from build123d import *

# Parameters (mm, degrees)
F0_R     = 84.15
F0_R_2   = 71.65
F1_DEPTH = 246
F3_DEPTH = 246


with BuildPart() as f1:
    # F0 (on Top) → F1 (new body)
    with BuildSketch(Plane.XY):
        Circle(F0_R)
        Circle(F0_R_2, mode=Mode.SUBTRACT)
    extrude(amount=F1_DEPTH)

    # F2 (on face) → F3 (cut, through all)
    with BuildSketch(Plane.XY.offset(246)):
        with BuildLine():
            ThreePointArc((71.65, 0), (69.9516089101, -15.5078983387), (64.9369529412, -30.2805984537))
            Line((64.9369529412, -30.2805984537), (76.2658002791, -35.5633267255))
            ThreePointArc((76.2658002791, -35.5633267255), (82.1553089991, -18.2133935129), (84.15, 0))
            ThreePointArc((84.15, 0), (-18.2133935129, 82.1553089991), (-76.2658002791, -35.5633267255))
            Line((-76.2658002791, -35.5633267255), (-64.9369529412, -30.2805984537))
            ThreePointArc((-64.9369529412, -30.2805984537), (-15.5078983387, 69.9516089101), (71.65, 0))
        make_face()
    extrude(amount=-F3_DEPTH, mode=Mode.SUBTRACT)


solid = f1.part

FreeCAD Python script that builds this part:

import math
import FreeCAD as App
import Part
import Sketcher

V = App.Vector
Q = App.Units.Quantity

doc = App.newDocument("Part")
body = doc.addObject("PartDesign::Body", "Body")

sketch1 = body.newObject("Sketcher::SketchObject", "Sketch")
sketch1.AttachmentSupport = (doc.getObject("XY_Plane"), [""])
sketch1.MapMode = "FlatFace"
sketch1.addGeometry([
    Part.Circle(V(0, 0, 0), V(0, 0, 1), 84),
    Part.Circle(V(0, 0, 0), V(0, 0, 1), 72),
], False)
sketch1.addConstraint([
    Sketcher.Constraint("Coincident", 0, 3, -1, 1),
    Sketcher.Constraint("Coincident", 1, 3, -1, 1),
    Sketcher.Constraint("Diameter", 0, 168.3),
    Sketcher.Constraint("Diameter", 1, 143.3),
])
pad1 = body.newObject("PartDesign::Pad", "Pad")
pad1.Profile = sketch1
pad1.Length = 246

sketch2 = body.newObject("Sketcher::SketchObject", "Sketch001")
sketch2.AttachmentSupport = (doc.getObject("XY_Plane"), [""])
sketch2.MapMode = "FlatFace"
sketch2.AttachmentOffset = App.Placement(V(0, 0, 246), App.Rotation())
sketch2.addGeometry([
    Part.ArcOfCircle(Part.Circle(V(0, 0, 0), V(0, 0, 1), 72), math.radians(-25), math.radians(0)),
    Part.LineSegment(V(65, -30, 0), V(76, -36, 0)),
    Part.ArcOfCircle(Part.Circle(V(0, 0, 0), V(0, 0, 1), 84), math.radians(-25), math.radians(0)),
    Part.ArcOfCircle(Part.Circle(V(0, 0, 0), V(0, 0, 1), 84), math.radians(0), math.radians(205)),
    Part.LineSegment(V(-76, -36, 0), V(-65, -30, 0)),
    Part.ArcOfCircle(Part.Circle(V(0, 0, 0), V(0, 0, 1), 72), math.radians(0), math.radians(205)),
], False)
sketch2.addConstraint([
    Sketcher.Constraint("Coincident", 0, 1, 1, 1),
    Sketcher.Constraint("Coincident", 1, 2, 2, 1),
    Sketcher.Constraint("Tangent", 2, 2, 3, 1),
    Sketcher.Constraint("Coincident", 3, 2, 4, 1),
    Sketcher.Constraint("Coincident", 4, 2, 5, 2),
    Sketcher.Constraint("Tangent", 5, 1, 0, 2),
    Sketcher.Constraint("Coincident", 0, 3, -1, 1),
    Sketcher.Constraint("Coincident", 2, 3, -1, 1),
    Sketcher.Constraint("Equal", 2, 3),
    Sketcher.Constraint("Equal", 0, 5),
    Sketcher.Constraint("PointOnObject", 2, 2, -1),
    Sketcher.Constraint("PointOnObject", 5, 1, -1),
    Sketcher.Constraint("Horizontal", 1, 2, 3, 2),
    Sketcher.Constraint("Horizontal", 0, 1, 4, 2),
    Sketcher.Constraint("Angle", 1, Q("-25 deg")),
    Sketcher.Constraint("Radius", 0, 71.65),
    Sketcher.Constraint("Radius", 2, 84.15),
    Sketcher.Constraint("DistanceY", 0, 1, -1, 1, 30.280598),
])
pocket1 = body.newObject("PartDesign::Pocket", "Pocket")
pocket1.Profile = sketch2
pocket1.Type = "ThroughAll"

doc.recompute()
